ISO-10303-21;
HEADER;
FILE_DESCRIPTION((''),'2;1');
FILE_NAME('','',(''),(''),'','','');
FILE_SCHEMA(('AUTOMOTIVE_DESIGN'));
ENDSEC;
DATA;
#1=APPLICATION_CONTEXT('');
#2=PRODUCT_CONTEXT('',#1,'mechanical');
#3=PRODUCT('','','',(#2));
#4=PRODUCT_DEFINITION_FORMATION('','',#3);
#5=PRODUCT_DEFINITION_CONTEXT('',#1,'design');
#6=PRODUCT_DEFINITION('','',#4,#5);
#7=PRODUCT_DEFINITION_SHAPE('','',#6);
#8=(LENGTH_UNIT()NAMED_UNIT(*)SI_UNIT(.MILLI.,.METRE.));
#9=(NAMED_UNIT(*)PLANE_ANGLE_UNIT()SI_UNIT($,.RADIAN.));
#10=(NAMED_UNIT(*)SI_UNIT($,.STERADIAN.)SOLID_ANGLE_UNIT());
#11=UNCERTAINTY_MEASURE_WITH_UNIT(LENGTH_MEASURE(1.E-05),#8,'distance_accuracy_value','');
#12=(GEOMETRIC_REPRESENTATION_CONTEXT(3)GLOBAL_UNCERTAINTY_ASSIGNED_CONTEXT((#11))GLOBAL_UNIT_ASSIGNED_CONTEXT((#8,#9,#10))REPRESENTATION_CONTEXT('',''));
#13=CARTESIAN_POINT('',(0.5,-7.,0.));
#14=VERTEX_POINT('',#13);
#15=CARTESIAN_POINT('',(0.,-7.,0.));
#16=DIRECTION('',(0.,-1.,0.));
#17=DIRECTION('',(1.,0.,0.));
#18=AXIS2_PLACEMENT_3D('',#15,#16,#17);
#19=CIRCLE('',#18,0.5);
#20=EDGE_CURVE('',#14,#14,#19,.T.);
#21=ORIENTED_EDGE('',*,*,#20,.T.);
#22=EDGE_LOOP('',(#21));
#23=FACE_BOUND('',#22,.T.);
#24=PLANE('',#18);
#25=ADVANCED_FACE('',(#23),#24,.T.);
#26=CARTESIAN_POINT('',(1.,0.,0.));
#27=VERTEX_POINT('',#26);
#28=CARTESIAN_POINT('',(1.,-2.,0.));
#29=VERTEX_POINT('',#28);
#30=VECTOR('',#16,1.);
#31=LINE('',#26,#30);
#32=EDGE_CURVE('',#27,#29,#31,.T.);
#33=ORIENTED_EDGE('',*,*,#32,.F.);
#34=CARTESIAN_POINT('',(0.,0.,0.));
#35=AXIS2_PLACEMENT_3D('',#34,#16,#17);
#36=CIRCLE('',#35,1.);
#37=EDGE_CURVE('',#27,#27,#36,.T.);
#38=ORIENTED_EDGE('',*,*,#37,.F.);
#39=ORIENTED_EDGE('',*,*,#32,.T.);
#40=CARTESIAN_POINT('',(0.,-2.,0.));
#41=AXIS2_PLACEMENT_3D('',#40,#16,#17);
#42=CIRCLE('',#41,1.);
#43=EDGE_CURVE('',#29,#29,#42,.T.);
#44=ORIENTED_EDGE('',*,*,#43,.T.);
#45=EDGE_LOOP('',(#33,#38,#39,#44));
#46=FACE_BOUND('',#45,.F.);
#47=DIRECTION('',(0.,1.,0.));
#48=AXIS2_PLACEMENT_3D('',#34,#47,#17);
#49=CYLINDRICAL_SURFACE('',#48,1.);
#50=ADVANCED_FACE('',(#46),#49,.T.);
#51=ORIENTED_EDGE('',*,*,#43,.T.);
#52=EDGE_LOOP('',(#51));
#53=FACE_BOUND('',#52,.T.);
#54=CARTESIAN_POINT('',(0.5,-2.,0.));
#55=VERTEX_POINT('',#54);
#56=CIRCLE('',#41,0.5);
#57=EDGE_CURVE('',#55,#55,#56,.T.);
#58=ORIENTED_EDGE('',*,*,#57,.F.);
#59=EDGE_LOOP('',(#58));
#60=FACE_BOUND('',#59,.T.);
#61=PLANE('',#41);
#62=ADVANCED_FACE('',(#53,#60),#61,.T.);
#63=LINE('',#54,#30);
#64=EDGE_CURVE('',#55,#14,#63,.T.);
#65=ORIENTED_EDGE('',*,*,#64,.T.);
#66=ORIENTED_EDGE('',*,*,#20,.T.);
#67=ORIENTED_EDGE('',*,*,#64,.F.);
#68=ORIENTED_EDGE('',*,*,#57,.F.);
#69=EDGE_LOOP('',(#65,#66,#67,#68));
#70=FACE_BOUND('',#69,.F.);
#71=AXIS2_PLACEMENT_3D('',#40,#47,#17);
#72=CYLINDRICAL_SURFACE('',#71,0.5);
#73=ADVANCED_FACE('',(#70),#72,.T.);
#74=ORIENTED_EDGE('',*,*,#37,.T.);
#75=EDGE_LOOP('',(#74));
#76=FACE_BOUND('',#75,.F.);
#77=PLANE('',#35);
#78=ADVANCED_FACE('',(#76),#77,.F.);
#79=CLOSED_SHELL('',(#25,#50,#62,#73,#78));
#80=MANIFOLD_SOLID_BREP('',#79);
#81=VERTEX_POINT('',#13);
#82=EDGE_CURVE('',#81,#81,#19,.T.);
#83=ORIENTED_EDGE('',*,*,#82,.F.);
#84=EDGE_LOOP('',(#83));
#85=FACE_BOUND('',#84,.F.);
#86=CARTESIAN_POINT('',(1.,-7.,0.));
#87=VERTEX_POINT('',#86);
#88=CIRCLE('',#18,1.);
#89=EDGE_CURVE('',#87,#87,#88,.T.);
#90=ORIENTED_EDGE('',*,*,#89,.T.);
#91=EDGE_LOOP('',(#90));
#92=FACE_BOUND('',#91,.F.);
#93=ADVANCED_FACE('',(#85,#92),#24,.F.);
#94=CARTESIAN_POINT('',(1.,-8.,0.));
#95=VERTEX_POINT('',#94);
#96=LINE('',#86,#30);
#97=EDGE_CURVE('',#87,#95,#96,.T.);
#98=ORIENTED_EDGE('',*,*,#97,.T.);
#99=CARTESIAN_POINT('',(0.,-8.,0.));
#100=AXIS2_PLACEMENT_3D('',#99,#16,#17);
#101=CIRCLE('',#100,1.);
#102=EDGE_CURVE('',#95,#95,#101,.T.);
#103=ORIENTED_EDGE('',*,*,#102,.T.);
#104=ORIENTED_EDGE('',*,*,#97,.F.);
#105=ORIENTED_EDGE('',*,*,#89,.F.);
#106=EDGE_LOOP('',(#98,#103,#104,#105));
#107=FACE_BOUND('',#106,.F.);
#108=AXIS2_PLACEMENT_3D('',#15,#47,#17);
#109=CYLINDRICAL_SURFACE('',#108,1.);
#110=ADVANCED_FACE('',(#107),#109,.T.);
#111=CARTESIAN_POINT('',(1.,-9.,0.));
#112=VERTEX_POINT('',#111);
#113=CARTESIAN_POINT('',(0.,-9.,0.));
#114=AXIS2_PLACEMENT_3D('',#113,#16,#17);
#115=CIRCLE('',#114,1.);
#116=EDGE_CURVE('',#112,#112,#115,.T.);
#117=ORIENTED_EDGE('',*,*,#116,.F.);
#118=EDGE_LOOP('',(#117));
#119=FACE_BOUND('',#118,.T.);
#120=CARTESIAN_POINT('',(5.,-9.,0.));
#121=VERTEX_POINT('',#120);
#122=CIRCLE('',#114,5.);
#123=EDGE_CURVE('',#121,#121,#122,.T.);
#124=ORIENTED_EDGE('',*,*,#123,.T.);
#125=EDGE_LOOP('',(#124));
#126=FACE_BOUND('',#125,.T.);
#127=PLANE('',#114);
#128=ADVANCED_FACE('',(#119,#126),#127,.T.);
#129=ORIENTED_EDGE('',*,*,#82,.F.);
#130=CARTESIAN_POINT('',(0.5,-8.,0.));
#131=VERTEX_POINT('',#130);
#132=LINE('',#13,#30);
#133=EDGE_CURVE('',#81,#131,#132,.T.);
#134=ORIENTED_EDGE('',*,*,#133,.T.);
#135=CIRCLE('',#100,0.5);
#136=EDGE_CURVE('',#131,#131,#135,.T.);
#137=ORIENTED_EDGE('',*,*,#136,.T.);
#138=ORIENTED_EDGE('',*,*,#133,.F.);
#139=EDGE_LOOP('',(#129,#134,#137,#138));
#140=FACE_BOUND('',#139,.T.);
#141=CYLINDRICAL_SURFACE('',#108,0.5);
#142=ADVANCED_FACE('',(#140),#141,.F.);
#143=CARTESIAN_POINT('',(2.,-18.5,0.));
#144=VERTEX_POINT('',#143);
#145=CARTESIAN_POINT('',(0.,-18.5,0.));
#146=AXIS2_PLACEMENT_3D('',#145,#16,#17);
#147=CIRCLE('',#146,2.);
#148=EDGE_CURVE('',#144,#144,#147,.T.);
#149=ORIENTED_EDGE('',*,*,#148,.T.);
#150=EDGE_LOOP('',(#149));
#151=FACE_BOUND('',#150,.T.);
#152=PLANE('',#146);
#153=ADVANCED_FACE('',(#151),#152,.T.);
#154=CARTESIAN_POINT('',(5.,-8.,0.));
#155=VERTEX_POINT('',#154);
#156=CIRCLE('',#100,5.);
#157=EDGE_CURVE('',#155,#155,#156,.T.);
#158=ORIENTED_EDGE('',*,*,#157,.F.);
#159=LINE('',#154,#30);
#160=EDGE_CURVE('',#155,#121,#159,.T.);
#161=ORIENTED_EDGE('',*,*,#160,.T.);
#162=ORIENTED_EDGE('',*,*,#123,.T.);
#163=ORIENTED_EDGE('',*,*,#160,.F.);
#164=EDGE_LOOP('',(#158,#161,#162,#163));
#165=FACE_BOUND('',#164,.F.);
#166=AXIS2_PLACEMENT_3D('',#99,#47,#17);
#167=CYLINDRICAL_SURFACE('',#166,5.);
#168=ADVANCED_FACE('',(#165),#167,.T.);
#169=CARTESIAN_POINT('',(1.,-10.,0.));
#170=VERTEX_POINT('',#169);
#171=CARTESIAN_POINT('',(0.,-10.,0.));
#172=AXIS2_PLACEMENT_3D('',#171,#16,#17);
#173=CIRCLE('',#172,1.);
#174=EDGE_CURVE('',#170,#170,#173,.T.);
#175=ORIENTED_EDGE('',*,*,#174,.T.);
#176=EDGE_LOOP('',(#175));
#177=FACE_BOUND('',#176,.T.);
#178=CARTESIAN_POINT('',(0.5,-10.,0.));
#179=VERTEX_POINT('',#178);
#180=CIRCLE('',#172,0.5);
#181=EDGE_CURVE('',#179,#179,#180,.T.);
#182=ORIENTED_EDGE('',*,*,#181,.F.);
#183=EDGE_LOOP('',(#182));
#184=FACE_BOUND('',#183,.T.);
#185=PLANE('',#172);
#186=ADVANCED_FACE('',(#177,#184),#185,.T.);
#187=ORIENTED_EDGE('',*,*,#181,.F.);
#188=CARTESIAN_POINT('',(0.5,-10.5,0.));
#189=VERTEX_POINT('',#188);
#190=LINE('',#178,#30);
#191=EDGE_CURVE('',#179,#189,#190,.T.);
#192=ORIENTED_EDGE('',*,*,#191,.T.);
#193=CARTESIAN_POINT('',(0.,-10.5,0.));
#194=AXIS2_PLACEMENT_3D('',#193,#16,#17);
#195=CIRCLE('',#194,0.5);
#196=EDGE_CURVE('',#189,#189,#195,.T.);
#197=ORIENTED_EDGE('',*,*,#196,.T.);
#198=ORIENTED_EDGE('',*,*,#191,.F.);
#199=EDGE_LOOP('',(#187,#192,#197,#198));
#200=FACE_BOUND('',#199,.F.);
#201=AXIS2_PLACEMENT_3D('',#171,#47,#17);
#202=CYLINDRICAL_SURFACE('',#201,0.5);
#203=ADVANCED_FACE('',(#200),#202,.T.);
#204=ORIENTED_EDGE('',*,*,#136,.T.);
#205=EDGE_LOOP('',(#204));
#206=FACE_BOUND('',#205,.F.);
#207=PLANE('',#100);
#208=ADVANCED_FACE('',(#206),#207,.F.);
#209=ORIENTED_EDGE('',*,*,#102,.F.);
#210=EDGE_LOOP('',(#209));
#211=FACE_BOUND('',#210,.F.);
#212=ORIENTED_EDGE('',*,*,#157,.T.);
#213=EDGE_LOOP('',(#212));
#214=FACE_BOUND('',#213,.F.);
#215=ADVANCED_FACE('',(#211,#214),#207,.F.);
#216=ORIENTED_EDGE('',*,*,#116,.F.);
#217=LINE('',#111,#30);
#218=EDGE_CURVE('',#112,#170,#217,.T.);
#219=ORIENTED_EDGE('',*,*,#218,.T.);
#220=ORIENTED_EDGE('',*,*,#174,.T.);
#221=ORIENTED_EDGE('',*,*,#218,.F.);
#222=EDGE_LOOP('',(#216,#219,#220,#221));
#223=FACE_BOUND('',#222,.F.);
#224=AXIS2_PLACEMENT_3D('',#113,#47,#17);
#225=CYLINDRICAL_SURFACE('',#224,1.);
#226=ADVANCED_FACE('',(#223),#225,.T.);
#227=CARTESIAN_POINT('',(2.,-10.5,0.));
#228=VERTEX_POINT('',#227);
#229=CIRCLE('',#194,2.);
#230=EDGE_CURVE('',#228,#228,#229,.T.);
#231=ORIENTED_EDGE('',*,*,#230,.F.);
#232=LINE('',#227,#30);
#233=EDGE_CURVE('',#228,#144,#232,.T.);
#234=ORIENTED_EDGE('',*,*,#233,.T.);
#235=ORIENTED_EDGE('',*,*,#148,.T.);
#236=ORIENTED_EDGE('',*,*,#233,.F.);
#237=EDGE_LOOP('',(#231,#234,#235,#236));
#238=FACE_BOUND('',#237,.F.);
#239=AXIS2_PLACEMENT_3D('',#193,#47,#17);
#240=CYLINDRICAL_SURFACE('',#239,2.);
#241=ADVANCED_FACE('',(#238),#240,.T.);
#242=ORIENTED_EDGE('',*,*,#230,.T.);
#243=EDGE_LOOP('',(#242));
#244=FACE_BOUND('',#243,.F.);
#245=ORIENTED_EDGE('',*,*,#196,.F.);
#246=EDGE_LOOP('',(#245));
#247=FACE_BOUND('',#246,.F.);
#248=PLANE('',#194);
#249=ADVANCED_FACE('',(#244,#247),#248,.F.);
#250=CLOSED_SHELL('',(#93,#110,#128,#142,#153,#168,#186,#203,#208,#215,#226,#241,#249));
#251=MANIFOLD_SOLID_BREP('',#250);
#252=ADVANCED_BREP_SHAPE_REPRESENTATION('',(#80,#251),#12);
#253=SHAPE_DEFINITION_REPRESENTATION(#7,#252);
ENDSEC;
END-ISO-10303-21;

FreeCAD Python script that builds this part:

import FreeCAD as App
import Part
import Sketcher
Q = App.Units.Quantity

doc = App.newDocument("Part")
params = doc.addObject("Spreadsheet::Sheet", "Params")
for row, (alias, value) in enumerate([
    ("sketch1_diameter", "2 mm"),
    ("pad1_length", "2 mm"),
    ("sketch2_diameter", "1 mm"),
    ("pad2_length", "5 mm"),
    ("sketch3_diameter", "2 mm"),
    ("sketch3_diameter2", "1 mm"),
    ("pad3_length", "1 mm"),
    ("sketch4_diameter", "10 mm"),
    ("pad4_length", "1 mm"),
    ("sketch5_diameter", "2 mm"),
    ("pad5_length", "1 mm"),
    ("sketch6_diameter", "1 mm"),
    ("pad6_length", "0.5 mm"),
    ("sketch7_diameter", "4 mm"),
    ("pad7_length", "8 mm"),
], start=1):
    params.set(f"A{row}", alias)
    params.set(f"B{row}", "=" + value)
    params.setAlias(f"B{row}", alias)

body = doc.addObject("PartDesign::Body", "Body")

# Sketch on XZ plane
sketch1 = doc.addObject("Sketcher::SketchObject", "Sketch")
body.addObject(sketch1)
sketch1.AttachmentSupport = (doc.XZ_Plane, [""])
sketch1.MapMode = "FlatFace"
sketch1.addGeometry(Part.Circle(App.Vector(0, 0, 0), App.Vector(0, 0, 1), 1), False)
sketch1.addConstraint(Sketcher.Constraint("Coincident", 0, 3, -1, 1))
sketch1.addConstraint(Sketcher.Constraint("Diameter", 0, Q("2 mm")))
sketch1.setExpression("Constraints[1]", "Params.sketch1_diameter")
pad1 = doc.addObject("PartDesign::Pad", "Pad")
body.addObject(pad1)
pad1.Profile = sketch1
pad1.setExpression("Length", "Params.pad1_length")

# Sketch on XZ plane
sketch2 = doc.addObject("Sketcher::SketchObject", "Sketch001")
body.addObject(sketch2)
sketch2.AttachmentSupport = (doc.XZ_Plane, [""])
sketch2.MapMode = "FlatFace"
sketch2.AttachmentOffset = App.Placement(App.Vector(0, 0, 2), App.Rotation())
sketch2.addGeometry(Part.Circle(App.Vector(0, 0, 0), App.Vector(0, 0, 1), 0.5), False)
sketch2.addConstraint(Sketcher.Constraint("Coincident", 0, 3, -1, 1))
sketch2.addConstraint(Sketcher.Constraint("Diameter", 0, Q("1 mm")))
sketch2.setExpression("Constraints[1]", "Params.sketch2_diameter")
pad2 = doc.addObject("PartDesign::Pad", "Pad001")
body.addObject(pad2)
pad2.Profile = sketch2
pad2.setExpression("Length", "Params.pad2_length")
body2 = doc.addObject("PartDesign::Body", "Body001")

# Sketch on XZ plane
sketch3 = doc.addObject("Sketcher::SketchObject", "Sketch002")
body2.addObject(sketch3)
sketch3.AttachmentSupport = (doc.getObject("XZ_Plane001"), [""])
sketch3.MapMode = "FlatFace"
sketch3.AttachmentOffset = App.Placement(App.Vector(0, 0, 7), App.Rotation())
sketch3.addGeometry(Part.Circle(App.Vector(0, 0, 0), App.Vector(0, 0, 1), 1), False)
sketch3.addGeometry(Part.Circle(App.Vector(0, 0, 0), App.Vector(0, 0, 1), 0.5), False)
sketch3.addConstraint(Sketcher.Constraint("Coincident", 0, 3, -1, 1))
sketch3.addConstraint(Sketcher.Constraint("Coincident", 1, 3, -1, 1))
sketch3.addConstraint(Sketcher.Constraint("Diameter", 0, Q("2 mm")))
sketch3.addConstraint(Sketcher.Constraint("Diameter", 1, Q("1 mm")))
sketch3.setExpression("Constraints[2]", "Params.sketch3_diameter")
sketch3.setExpression("Constraints[3]", "Params.sketch3_diameter2")
pad3 = doc.addObject("PartDesign::Pad", "Pad002")
body2.addObject(pad3)
pad3.Profile = sketch3
pad3.setExpression("Length", "Params.pad3_length")

# Sketch on XZ plane
sketch4 = doc.addObject("Sketcher::SketchObject", "Sketch003")
body2.addObject(sketch4)
sketch4.AttachmentSupport = (doc.getObject("XZ_Plane001"), [""])
sketch4.MapMode = "FlatFace"
sketch4.AttachmentOffset = App.Placement(App.Vector(0, 0, 8), App.Rotation())
sketch4.addGeometry(Part.Circle(App.Vector(0, 0, 0), App.Vector(0, 0, 1), 5), False)
sketch4.addConstraint(Sketcher.Constraint("Coincident", 0, 3, -1, 1))
sketch4.addConstraint(Sketcher.Constraint("Diameter", 0, Q("10 mm")))
sketch4.setExpression("Constraints[1]", "Params.sketch4_diameter")
pad4 = doc.addObject("PartDesign::Pad", "Pad003")
body2.addObject(pad4)
pad4.Profile = sketch4
pad4.setExpression("Length", "Params.pad4_length")

# Sketch on XZ plane
sketch5 = doc.addObject("Sketcher::SketchObject", "Sketch004")
body2.addObject(sketch5)
sketch5.AttachmentSupport = (doc.getObject("XZ_Plane001"), [""])
sketch5.MapMode = "FlatFace"
sketch5.AttachmentOffset = App.Placement(App.Vector(0, 0, 9), App.Rotation())
sketch5.addGeometry(Part.Circle(App.Vector(0, 0, 0), App.Vector(0, 0, 1), 1), False)
sketch5.addConstraint(Sketcher.Constraint("Coincident", 0, 3, -1, 1))
sketch5.addConstraint(Sketcher.Constraint("Diameter", 0, Q("2 mm")))
sketch5.setExpression("Constraints[1]", "Params.sketch5_diameter")
pad5 = doc.addObject("PartDesign::Pad", "Pad004")
body2.addObject(pad5)
pad5.Profile = sketch5
pad5.setExpression("Length", "Params.pad5_length")

# Sketch on XZ plane
sketch6 = doc.addObject("Sketcher::SketchObject", "Sketch005")
body2.addObject(sketch6)
sketch6.AttachmentSupport = (doc.getObject("XZ_Plane001"), [""])
sketch6.MapMode = "FlatFace"
sketch6.AttachmentOffset = App.Placement(App.Vector(0, 0, 10), App.Rotation())
sketch6.addGeometry(Part.Circle(App.Vector(0, 0, 0), App.Vector(0, 0, 1), 0.5), False)
sketch6.addConstraint(Sketcher.Constraint("Coincident", 0, 3, -1, 1))
sketch6.addConstraint(Sketcher.Constraint("Diameter", 0, Q("1 mm")))
sketch6.setExpression("Constraints[1]", "Params.sketch6_diameter")
pad6 = doc.addObject("PartDesign::Pad", "Pad005")
body2.addObject(pad6)
pad6.Profile = sketch6
pad6.setExpression("Length", "Params.pad6_length")

# Sketch on XZ plane
sketch7 = doc.addObject("Sketcher::SketchObject", "Sketch006")
body2.addObject(sketch7)
sketch7.AttachmentSupport = (doc.getObject("XZ_Plane001"), [""])
sketch7.MapMode = "FlatFace"
sketch7.AttachmentOffset = App.Placement(App.Vector(0, 0, 10.5), App.Rotation())
sketch7.addGeometry(Part.Circle(App.Vector(0, 0, 0), App.Vector(0, 0, 1), 2), False)
sketch7.addConstraint(Sketcher.Constraint("Coincident", 0, 3, -1, 1))
sketch7.addConstraint(Sketcher.Constraint("Diameter", 0, Q("4 mm")))
sketch7.setExpression("Constraints[1]", "Params.sketch7_diameter")
pad7 = doc.addObject("PartDesign::Pad", "Pad006")
body2.addObject(pad7)
pad7.Profile = sketch7
pad7.setExpression("Length", "Params.pad7_length")

doc.recompute()
